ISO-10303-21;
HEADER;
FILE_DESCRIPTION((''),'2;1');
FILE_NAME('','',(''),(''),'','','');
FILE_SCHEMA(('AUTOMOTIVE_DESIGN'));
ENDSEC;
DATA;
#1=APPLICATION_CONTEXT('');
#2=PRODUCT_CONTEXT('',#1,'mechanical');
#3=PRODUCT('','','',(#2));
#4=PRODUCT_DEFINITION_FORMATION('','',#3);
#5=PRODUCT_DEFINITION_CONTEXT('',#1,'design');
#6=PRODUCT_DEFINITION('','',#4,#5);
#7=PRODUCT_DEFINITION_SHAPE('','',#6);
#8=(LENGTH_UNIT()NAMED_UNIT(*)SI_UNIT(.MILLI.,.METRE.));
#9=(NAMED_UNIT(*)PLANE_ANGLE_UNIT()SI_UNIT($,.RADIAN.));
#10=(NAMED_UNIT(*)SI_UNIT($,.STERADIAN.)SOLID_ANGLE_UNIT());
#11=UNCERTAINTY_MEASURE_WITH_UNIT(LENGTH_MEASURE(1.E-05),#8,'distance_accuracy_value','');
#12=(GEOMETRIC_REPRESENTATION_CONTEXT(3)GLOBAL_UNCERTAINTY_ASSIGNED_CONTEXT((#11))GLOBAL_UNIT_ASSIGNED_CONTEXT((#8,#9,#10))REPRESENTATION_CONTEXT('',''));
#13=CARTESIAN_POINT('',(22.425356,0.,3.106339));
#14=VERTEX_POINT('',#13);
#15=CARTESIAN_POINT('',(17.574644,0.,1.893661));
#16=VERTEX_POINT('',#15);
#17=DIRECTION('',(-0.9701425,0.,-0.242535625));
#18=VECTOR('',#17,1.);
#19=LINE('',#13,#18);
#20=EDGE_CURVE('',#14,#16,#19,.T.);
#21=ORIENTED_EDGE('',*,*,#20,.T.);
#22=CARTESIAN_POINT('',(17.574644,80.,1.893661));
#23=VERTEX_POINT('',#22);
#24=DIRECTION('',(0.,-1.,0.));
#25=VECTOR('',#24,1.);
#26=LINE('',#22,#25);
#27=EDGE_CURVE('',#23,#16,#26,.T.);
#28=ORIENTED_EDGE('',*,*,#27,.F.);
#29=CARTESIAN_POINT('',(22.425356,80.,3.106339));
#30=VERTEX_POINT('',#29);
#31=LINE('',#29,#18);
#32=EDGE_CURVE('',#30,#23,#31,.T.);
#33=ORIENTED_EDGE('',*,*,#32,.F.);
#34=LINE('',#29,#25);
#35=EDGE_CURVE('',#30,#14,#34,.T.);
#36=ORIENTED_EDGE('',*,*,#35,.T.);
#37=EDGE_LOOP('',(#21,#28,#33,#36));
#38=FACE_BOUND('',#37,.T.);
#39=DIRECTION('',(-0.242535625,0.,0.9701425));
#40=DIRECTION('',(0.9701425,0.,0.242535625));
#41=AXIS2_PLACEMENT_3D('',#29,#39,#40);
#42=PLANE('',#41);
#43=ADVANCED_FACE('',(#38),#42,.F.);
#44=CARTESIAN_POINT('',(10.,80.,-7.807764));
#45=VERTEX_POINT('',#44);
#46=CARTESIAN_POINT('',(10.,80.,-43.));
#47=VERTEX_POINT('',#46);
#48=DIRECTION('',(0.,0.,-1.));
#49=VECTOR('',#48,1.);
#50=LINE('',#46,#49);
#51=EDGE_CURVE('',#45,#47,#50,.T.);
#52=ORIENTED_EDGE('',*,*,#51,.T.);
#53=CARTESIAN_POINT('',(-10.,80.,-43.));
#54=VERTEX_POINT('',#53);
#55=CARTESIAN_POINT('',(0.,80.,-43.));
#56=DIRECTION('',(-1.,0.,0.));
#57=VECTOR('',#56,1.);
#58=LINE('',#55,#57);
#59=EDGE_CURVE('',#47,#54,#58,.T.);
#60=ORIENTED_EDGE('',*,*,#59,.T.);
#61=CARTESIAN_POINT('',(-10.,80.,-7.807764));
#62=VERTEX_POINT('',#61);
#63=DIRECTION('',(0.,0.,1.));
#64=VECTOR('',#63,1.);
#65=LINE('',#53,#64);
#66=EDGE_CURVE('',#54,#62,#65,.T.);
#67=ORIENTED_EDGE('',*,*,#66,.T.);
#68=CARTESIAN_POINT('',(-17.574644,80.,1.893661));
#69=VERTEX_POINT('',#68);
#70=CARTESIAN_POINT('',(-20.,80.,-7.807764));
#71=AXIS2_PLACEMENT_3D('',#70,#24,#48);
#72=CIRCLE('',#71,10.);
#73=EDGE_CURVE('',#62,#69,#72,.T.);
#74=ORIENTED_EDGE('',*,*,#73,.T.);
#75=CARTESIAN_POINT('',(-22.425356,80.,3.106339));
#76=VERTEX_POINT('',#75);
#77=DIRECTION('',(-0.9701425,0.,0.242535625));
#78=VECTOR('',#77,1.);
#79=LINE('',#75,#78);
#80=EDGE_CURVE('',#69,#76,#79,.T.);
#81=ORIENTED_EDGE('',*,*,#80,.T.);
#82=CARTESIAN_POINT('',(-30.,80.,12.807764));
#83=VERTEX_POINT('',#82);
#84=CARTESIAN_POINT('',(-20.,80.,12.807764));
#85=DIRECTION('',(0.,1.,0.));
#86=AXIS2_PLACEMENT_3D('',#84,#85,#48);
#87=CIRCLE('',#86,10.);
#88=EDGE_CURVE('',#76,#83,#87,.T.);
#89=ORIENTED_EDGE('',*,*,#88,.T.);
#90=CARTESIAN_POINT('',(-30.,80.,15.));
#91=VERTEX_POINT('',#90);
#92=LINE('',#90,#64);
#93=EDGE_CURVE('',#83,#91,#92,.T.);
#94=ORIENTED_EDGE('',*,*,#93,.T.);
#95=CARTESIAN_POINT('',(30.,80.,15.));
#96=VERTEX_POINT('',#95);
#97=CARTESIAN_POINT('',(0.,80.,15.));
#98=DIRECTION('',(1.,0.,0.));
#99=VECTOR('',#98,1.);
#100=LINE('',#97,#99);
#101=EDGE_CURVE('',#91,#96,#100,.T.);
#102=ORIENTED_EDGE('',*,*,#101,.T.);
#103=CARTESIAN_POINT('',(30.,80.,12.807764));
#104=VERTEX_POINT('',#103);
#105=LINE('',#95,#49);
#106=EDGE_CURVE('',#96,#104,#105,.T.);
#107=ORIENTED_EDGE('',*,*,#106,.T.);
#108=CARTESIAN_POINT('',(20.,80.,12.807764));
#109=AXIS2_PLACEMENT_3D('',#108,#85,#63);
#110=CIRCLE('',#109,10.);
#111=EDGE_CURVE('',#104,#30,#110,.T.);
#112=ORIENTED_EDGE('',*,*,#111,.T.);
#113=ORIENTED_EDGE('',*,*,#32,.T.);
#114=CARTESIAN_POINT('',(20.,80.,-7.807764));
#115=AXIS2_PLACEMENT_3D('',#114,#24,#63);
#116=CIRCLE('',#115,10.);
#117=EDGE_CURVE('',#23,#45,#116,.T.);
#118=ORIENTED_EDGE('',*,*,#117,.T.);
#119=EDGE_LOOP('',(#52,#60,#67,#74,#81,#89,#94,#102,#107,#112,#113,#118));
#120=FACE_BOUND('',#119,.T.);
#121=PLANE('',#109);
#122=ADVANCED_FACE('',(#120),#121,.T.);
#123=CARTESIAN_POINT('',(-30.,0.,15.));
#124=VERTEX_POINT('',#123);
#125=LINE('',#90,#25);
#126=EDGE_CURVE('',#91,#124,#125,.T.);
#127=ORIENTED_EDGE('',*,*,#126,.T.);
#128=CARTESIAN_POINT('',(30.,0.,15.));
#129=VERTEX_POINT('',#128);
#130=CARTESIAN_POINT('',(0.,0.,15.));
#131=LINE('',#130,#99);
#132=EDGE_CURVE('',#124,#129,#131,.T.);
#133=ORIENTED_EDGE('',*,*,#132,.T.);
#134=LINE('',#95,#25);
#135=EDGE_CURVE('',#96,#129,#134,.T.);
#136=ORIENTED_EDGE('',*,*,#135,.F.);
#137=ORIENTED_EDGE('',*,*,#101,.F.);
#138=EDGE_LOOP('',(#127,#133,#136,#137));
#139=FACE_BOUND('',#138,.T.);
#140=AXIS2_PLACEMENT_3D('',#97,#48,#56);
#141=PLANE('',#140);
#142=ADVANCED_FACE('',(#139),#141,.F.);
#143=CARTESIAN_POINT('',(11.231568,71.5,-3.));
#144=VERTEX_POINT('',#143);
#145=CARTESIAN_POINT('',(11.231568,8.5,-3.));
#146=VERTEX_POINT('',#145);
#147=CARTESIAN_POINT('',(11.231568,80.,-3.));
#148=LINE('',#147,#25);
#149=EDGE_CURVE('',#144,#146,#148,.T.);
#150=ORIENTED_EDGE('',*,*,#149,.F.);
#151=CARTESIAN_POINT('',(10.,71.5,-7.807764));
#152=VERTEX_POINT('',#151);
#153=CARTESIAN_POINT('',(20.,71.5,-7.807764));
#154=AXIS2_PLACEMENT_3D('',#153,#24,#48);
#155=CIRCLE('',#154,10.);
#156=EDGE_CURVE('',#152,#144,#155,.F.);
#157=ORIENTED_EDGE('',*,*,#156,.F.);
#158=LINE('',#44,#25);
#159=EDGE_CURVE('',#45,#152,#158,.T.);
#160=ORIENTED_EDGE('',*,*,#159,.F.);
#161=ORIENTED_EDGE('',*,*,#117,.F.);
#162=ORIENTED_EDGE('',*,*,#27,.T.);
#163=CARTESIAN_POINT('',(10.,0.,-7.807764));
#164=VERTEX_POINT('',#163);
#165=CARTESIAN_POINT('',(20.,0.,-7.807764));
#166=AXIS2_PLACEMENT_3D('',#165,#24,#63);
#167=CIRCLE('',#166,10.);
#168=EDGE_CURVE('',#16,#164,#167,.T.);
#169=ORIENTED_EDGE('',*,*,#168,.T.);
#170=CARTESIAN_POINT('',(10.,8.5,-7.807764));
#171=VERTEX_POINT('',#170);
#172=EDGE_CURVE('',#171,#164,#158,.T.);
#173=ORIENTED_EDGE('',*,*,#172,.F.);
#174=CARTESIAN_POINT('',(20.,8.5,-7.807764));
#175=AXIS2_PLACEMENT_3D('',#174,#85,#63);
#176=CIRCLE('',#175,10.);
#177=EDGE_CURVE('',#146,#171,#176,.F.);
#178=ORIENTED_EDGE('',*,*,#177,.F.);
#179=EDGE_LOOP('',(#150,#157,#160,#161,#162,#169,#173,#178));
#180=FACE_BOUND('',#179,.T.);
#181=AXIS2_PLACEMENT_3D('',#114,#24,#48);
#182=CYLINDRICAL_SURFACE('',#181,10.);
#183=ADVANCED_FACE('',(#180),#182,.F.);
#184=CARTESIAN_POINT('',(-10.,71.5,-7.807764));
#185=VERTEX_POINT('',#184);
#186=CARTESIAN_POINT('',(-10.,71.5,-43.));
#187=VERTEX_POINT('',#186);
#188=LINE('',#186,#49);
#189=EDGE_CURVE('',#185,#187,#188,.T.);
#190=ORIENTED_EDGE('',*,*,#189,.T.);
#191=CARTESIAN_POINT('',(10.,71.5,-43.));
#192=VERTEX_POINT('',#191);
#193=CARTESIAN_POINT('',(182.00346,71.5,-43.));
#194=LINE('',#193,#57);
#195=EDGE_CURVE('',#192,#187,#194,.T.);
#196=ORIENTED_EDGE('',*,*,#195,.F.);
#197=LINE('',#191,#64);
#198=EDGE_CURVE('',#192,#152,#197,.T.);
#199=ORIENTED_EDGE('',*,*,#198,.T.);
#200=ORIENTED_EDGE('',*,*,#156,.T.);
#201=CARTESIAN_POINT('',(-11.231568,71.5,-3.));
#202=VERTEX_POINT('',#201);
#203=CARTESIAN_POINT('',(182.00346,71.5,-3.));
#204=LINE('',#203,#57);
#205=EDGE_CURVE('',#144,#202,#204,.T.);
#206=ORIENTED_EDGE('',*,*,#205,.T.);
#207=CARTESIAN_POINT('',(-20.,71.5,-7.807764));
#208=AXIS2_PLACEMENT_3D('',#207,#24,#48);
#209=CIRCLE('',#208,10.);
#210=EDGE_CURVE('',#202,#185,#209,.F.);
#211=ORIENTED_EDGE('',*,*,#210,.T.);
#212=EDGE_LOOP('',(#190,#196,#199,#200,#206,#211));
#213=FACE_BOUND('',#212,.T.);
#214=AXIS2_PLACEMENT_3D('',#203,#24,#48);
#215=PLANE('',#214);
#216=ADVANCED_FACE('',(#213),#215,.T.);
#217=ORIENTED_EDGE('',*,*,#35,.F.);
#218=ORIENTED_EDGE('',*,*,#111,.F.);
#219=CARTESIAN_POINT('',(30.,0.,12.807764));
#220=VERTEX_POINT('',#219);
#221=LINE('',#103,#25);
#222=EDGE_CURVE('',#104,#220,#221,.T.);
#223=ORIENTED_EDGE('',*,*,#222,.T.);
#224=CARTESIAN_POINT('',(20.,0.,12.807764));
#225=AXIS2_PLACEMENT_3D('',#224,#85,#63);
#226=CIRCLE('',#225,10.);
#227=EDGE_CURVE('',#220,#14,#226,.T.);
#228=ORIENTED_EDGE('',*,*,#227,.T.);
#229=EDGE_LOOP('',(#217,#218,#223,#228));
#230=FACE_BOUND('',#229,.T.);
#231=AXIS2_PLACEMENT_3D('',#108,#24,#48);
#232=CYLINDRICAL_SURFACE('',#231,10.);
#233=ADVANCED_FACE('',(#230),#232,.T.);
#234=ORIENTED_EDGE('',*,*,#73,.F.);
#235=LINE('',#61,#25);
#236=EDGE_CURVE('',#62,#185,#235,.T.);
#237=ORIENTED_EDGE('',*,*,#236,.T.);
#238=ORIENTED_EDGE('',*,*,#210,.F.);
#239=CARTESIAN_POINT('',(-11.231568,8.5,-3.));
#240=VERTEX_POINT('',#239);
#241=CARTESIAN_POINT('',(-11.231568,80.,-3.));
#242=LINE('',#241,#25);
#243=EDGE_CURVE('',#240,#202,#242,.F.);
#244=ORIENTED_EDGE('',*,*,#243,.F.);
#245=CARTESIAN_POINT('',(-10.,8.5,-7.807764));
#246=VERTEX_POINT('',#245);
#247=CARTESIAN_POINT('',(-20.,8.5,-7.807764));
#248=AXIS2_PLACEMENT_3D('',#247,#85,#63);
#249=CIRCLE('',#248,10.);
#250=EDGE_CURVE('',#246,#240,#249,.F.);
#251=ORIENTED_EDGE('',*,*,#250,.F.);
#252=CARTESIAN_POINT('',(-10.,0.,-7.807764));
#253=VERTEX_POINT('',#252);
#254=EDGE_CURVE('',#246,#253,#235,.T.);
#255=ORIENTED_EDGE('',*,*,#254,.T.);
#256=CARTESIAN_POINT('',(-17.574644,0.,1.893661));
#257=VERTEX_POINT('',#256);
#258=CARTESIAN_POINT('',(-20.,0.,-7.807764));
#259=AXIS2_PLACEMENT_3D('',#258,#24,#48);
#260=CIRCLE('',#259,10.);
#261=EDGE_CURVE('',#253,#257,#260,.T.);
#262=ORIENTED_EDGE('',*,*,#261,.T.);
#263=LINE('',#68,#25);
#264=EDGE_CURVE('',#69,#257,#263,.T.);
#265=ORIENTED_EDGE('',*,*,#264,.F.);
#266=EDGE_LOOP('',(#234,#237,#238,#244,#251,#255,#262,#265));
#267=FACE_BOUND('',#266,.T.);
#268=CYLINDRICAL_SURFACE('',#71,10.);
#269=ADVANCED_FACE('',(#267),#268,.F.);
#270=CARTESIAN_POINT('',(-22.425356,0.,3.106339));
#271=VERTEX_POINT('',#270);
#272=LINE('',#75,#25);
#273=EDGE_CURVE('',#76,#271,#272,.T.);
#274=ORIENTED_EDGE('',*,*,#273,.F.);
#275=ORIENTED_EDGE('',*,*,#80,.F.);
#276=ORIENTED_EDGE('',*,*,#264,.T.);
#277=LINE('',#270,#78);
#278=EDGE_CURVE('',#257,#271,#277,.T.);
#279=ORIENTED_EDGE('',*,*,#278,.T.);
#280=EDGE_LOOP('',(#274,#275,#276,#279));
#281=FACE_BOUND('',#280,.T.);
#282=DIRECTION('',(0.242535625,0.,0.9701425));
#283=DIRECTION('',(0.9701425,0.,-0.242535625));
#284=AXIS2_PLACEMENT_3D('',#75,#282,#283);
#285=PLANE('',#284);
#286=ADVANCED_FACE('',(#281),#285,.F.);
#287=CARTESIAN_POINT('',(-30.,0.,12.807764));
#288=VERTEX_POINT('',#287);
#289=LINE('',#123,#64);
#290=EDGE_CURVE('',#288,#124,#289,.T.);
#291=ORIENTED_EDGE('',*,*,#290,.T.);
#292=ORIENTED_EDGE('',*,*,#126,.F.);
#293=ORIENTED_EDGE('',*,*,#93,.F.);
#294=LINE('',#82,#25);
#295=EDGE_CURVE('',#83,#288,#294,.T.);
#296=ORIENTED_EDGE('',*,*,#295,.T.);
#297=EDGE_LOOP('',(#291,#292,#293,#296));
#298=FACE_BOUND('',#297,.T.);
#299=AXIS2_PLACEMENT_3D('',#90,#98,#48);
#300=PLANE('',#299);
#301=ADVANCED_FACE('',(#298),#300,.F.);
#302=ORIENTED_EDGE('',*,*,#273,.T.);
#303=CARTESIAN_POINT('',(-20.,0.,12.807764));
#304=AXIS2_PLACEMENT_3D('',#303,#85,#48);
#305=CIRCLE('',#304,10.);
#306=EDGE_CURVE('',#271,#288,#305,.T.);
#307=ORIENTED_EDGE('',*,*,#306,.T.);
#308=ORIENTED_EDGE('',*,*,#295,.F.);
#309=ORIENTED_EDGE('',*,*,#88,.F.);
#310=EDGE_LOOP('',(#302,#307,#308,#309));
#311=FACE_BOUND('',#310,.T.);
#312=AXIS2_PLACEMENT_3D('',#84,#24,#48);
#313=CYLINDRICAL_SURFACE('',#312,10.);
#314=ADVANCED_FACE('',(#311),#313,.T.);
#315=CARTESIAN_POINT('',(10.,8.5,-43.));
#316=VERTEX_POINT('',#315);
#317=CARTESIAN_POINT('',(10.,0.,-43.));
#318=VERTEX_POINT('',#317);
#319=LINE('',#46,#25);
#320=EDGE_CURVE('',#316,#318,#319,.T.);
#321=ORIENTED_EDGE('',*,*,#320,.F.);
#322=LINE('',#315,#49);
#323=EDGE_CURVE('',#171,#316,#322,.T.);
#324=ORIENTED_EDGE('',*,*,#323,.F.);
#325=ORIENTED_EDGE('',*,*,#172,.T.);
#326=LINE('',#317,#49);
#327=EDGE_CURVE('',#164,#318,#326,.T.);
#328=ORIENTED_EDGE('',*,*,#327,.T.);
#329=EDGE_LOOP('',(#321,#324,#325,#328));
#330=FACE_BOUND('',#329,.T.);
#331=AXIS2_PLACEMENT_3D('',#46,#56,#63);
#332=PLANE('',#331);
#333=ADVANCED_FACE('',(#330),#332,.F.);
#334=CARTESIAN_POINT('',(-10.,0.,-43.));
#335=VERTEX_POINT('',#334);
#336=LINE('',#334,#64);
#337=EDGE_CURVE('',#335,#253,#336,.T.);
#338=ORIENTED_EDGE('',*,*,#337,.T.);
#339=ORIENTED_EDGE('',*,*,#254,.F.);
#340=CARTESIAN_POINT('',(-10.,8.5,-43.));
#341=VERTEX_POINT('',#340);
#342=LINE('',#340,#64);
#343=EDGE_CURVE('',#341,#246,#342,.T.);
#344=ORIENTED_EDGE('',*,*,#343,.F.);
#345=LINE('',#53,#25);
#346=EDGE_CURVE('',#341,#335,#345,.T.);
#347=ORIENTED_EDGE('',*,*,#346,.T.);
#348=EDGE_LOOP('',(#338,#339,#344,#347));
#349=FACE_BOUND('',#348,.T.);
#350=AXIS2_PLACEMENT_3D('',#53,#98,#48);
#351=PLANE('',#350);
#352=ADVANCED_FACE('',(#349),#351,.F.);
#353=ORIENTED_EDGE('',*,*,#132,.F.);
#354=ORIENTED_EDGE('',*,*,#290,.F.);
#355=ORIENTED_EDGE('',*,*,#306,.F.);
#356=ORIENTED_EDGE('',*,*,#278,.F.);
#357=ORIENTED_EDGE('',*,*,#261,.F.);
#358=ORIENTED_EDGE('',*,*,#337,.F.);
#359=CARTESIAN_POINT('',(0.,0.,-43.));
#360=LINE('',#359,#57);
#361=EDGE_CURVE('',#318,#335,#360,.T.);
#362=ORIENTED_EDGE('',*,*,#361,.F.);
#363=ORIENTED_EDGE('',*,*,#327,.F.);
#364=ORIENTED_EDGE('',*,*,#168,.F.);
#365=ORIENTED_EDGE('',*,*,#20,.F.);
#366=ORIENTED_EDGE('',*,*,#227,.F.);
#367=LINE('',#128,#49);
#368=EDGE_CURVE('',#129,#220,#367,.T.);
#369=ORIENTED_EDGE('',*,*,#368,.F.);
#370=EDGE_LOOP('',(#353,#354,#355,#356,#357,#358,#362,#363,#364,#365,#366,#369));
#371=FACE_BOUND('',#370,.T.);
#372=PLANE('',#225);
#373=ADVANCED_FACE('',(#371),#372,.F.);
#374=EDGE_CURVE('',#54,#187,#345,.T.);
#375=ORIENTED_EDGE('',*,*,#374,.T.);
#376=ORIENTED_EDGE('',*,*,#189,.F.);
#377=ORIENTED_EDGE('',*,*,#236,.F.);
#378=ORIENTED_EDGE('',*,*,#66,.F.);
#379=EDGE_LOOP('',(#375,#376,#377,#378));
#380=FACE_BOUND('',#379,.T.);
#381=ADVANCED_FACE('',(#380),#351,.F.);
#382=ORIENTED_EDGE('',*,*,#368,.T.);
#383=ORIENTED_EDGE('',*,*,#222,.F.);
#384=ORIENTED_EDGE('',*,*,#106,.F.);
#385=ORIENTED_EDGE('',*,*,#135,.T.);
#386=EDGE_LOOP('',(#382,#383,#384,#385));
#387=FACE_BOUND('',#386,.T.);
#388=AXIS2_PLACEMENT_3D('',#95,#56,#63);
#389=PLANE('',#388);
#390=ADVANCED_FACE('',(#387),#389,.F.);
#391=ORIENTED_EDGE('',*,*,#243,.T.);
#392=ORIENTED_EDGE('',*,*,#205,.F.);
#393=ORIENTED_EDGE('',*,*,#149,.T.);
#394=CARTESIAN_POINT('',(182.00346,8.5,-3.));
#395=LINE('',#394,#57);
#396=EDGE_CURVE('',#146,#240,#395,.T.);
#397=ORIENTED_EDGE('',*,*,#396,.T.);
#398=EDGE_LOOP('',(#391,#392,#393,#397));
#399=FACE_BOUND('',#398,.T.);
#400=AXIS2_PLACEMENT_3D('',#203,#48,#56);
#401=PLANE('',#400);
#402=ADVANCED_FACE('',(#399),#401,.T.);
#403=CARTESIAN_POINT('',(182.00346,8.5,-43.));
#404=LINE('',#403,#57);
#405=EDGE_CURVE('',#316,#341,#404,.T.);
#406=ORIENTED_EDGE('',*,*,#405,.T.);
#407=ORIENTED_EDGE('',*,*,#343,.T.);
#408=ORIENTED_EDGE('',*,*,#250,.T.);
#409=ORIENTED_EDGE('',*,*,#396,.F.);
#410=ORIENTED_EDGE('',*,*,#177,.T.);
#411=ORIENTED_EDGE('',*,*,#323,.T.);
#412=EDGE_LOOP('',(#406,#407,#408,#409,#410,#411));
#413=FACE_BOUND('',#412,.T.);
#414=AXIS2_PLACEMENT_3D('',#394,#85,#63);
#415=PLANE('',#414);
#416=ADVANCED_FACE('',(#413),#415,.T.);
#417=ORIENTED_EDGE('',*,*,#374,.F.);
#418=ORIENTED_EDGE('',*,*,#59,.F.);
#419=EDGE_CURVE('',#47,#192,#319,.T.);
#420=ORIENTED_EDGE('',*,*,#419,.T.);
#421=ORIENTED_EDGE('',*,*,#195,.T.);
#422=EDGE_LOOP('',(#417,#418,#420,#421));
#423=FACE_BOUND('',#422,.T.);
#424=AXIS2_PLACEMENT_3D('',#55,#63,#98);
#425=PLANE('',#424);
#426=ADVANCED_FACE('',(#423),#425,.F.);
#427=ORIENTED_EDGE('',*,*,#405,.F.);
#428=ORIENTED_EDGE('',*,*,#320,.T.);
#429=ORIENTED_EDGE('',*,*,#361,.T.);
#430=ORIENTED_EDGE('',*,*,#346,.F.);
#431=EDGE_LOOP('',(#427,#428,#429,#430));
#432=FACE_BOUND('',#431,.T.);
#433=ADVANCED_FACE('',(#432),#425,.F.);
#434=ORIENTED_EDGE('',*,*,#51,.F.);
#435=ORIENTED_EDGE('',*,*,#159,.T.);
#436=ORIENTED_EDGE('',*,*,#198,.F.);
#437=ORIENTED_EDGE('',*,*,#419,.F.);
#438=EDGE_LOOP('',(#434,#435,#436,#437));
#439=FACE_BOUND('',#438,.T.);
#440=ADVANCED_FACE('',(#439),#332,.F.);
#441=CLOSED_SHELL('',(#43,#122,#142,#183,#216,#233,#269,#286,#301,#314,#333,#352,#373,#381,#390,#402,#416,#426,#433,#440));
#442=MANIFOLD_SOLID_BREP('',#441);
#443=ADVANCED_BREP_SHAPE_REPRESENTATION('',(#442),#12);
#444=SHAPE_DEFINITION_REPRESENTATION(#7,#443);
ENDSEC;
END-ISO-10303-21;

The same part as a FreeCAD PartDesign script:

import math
import FreeCAD as App
import Part
import Sketcher
Q = App.Units.Quantity


def add_polygon(sketch, points):
    """Adds a closed chain of lines whose ends are joined by coincident constraints."""
    first, n = sketch.GeometryCount, len(points)
    for a, b in zip(points, points[1:] + points[:1]):
        sketch.addGeometry(Part.LineSegment(App.Vector(*a, 0), App.Vector(*b, 0)), False)
    for i in range(n):
        sketch.addConstraint(Sketcher.Constraint("Coincident", first + i, 2, first + (i + 1) % n, 1))

doc = App.newDocument("Part")
params = doc.addObject("Spreadsheet::Sheet", "Params")
for row, (alias, value) in enumerate([
    ("sketch1_radius", "10 mm"),
    ("sketch1_width", "60 mm"),
    ("sketch1_length", "5 mm"),
    ("pad1_length", "80 mm"),
    ("sketch2_width", "63 mm"),
], start=1):
    params.set(f"A{row}", alias)
    params.set(f"B{row}", "=" + value)
    params.setAlias(f"B{row}", alias)

body = doc.addObject("PartDesign::Body", "Body")

# Sketch on XZ plane
sketch1 = body.newObject("Sketcher::SketchObject", "Sketch")
sketch1.AttachmentSupport = (doc.getObject("XZ_Plane"), [""])
sketch1.MapMode = "FlatFace"
sketch1.addGeometry([
    Part.LineSegment(App.Vector(-30, 12.8, 0), App.Vector(-30, 15, 0)),  # 0
    Part.LineSegment(App.Vector(-30, 15, 0), App.Vector(30, 15, 0)),  # 1
    Part.LineSegment(App.Vector(30, 15, 0), App.Vector(30, 12.8, 0)),  # 2
    Part.ArcOfCircle(Part.Circle(App.Vector(20, 12.8, 0), App.Vector(0, 0, 1), 10), math.radians(-76), math.radians(0)),  # 3
    Part.LineSegment(App.Vector(22.4, 3.1, 0), App.Vector(17.6, 1.9, 0)),  # 4
    Part.ArcOfCircle(Part.Circle(App.Vector(20, -7.8, 0), App.Vector(0, 0, 1), 10), math.radians(104), math.radians(180)),  # 5
    Part.LineSegment(App.Vector(10, -7.8, 0), App.Vector(10, -43, 0)),  # 6
    Part.LineSegment(App.Vector(10, -43, 0), App.Vector(-10, -43, 0)),  # 7
    Part.LineSegment(App.Vector(-10, -43, 0), App.Vector(-10, -7.8, 0)),  # 8
    Part.ArcOfCircle(Part.Circle(App.Vector(-20, -7.8, 0), App.Vector(0, 0, 1), 10), math.radians(0), math.radians(76)),  # 9
    Part.LineSegment(App.Vector(-17.6, 1.9, 0), App.Vector(-22.4, 3.1, 0)),  # 10
    Part.ArcOfCircle(Part.Circle(App.Vector(-20, 12.8, 0), App.Vector(0, 0, 1), 10), math.radians(180), math.radians(256)),  # 11
], False)
sketch1.addConstraint([
    Sketcher.Constraint("Coincident", 0, 2, 1, 1),
    Sketcher.Constraint("Coincident", 1, 2, 2, 1),
    Sketcher.Constraint("Tangent", 2, 2, 3, 2),
    Sketcher.Constraint("Tangent", 3, 1, 4, 1),
    Sketcher.Constraint("Tangent", 4, 2, 5, 1),
    Sketcher.Constraint("Tangent", 5, 2, 6, 1),
    Sketcher.Constraint("Coincident", 6, 2, 7, 1),
    Sketcher.Constraint("Coincident", 7, 2, 8, 1),
    Sketcher.Constraint("Tangent", 8, 2, 9, 1),
    Sketcher.Constraint("Tangent", 9, 2, 10, 1),
    Sketcher.Constraint("Tangent", 10, 2, 11, 2),
    Sketcher.Constraint("Tangent", 11, 1, 0, 1),
    Sketcher.Constraint("Vertical", 0),
    Sketcher.Constraint("Horizontal", 1),
    Sketcher.Constraint("Vertical", 2),
    Sketcher.Constraint("Vertical", 6),
    Sketcher.Constraint("Horizontal", 7),
    Sketcher.Constraint("Vertical", 8),
    Sketcher.Constraint("Equal", 3, 5),
    Sketcher.Constraint("Equal", 5, 9),
    Sketcher.Constraint("Equal", 9, 11),
    Sketcher.Constraint("Symmetric", 5, 3, 9, 3, -2),
    Sketcher.Constraint("Symmetric", 3, 3, 11, 3, -2),
    Sketcher.Constraint("Vertical", 3, 3, 5, 3),
    Sketcher.Constraint("Radius", 3, Q("10 mm")),
    Sketcher.Constraint("DistanceX", 1, 1, 1, 2, Q("60 mm")),
    Sketcher.Constraint("Distance", 4, Q("5 mm")),
    Sketcher.Constraint("DistanceY", -1, 1, 0, 2, Q("15 mm")),
    Sketcher.Constraint("DistanceY", 6, 2, -1, 1, Q("43 mm")),
    Sketcher.Constraint("DistanceY", 0, 1, 0, 2, Q("2.192236 mm")),
])
sketch1.setExpression("Constraints[24]", "Params.sketch1_radius")
sketch1.setExpression("Constraints[25]", "Params.sketch1_width")
sketch1.setExpression("Constraints[26]", "Params.sketch1_length")
pad1 = body.newObject("PartDesign::Pad", "Pad")
pad1.Profile = sketch1
pad1.setExpression("Length", "Params.pad1_length")
pad1.Reversed = True

# Sketch on YZ plane
sketch2 = body.newObject("Sketcher::SketchObject", "Sketch001")
sketch2.AttachmentSupport = (doc.getObject("YZ_Plane"), [""])
sketch2.MapMode = "FlatFace"
add_polygon(sketch2, [(8, -3), (8, -625), (72, -625), (72, -3)])  # lines 0-3
sketch2.addConstraint([
    Sketcher.Constraint("Vertical", 0),
    Sketcher.Constraint("Horizontal", 1),
    Sketcher.Constraint("Vertical", 2),
    Sketcher.Constraint("Horizontal", 3),
    Sketcher.Constraint("DistanceX", 1, 1, 1, 2, Q("63 mm")),
    Sketcher.Constraint("DistanceY", 2, 2, -1, 1, Q("3 mm")),
    Sketcher.Constraint("DistanceX", -1, 1, 0, 2, Q("8.5 mm")),
    Sketcher.Constraint("DistanceY", 0, 2, 0, 1, Q("622.399312 mm")),
])
sketch2.setExpression("Constraints[8]", "Params.sketch2_width")
pocket1 = body.newObject("PartDesign::Pocket", "Pocket")
pocket1.Profile = sketch2
pocket1.Type = "ThroughAll"
pocket1.Midplane = True

doc.recompute()
